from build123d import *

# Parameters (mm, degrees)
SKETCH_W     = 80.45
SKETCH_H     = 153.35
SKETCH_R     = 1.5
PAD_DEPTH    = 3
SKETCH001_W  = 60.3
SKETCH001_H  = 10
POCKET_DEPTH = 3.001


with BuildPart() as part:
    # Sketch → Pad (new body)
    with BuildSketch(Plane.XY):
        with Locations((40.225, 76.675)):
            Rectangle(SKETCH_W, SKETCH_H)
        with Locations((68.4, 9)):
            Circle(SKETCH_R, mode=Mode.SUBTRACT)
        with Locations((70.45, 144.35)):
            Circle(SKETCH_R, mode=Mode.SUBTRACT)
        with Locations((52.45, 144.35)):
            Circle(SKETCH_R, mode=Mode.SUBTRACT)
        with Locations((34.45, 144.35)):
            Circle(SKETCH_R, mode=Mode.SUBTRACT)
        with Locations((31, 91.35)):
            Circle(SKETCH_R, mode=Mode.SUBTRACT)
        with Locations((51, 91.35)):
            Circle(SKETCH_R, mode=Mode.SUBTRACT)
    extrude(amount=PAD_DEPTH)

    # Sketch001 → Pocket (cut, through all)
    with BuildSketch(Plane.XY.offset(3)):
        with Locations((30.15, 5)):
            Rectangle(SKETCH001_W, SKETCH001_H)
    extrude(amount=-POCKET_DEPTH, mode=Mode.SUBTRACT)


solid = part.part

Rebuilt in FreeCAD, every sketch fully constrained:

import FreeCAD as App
import Part
import Sketcher
from FreeCAD import Vector
Q = App.Units.Quantity


def add_polygon(sketch, points):
    """Adds a closed chain of lines whose ends are joined by coincident constraints."""
    first, n = sketch.GeometryCount, len(points)
    for a, b in zip(points, points[1:] + points[:1]):
        sketch.addGeometry(Part.LineSegment(App.Vector(*a, 0), App.Vector(*b, 0)), False)
    for i in range(n):
        sketch.addConstraint(Sketcher.Constraint("Coincident", first + i, 2, first + (i + 1) % n, 1))

doc = App.newDocument("Part")
body = doc.addObject("PartDesign::Body", "Body")

# Sketch on XY plane
sketch1 = body.newObject("Sketcher::SketchObject", "Sketch")
sketch1.AttachmentSupport = (doc.getObject("XY_Plane"), [""])
sketch1.MapMode = "FlatFace"
add_polygon(sketch1, [(0, 153.3), (0, 0), (80.5, 0), (80.5, 153.3)])  # lines 0-3
sketch1.addGeometry(Part.Circle(Vector(68.4, 9, 0), Vector(0, 0, 1), 1.5), False)  # 4
sketch1.addGeometry(Part.Circle(Vector(31, 91.3, 0), Vector(0, 0, 1), 1.5), False)  # 5
sketch1.addGeometry(Part.Circle(Vector(34.5, 144.3, 0), Vector(0, 0, 1), 1.5), False)  # 6
sketch1.addGeometry(Part.Circle(Vector(51, 91.3, 0), Vector(0, 0, 1), 1.5), False)  # 7
sketch1.addGeometry(Part.Circle(Vector(52.5, 144.3, 0), Vector(0, 0, 1), 1.5), False)  # 8
sketch1.addGeometry(Part.Circle(Vector(70.5, 144.3, 0), Vector(0, 0, 1), 1.5), False)  # 9
sketch1.addConstraint([
    Sketcher.Constraint("Vertical", 0),
    Sketcher.Constraint("Horizontal", 1),
    Sketcher.Constraint("Vertical", 2),
    Sketcher.Constraint("Horizontal", 3),
    Sketcher.Constraint("Coincident", 0, 2, -1, 1),
    Sketcher.Constraint("Equal", 4, 5),
    Sketcher.Constraint("Equal", 5, 6),
    Sketcher.Constraint("Equal", 6, 7),
    Sketcher.Constraint("Equal", 7, 8),
    Sketcher.Constraint("Equal", 8, 9),
    Sketcher.Constraint("Horizontal", 5, 3, 7, 3),
    Sketcher.Constraint("Horizontal", 6, 3, 8, 3),
    Sketcher.Constraint("Horizontal", 8, 3, 9, 3),
    Sketcher.Constraint("Diameter", 4, Q("3 mm")),
    Sketcher.Constraint("DistanceY", -1, 1, 4, 3, Q("9 mm")),
    Sketcher.Constraint("DistanceX", -1, 1, 5, 3, Q("31 mm")),
    Sketcher.Constraint("DistanceX", -1, 1, 7, 3, Q("51 mm")),
    Sketcher.Constraint("DistanceY", 5, 3, 6, 3, Q("53 mm")),
    Sketcher.Constraint("DistanceX", 6, 3, 8, 3, Q("18 mm")),
    Sketcher.Constraint("DistanceX", 8, 3, 9, 3, Q("18 mm")),
    Sketcher.Constraint("DistanceX", 9, 3, 1, 2, Q("10 mm")),
    Sketcher.Constraint("DistanceY", 9, 3, 2, 2, Q("9 mm")),
    Sketcher.Constraint("DistanceX", 1, 1, 1, 2, Q("80.45 mm")),
    Sketcher.Constraint("DistanceY", 0, 2, 0, 1, Q("153.35 mm")),
    Sketcher.Constraint("DistanceX", -1, 1, 4, 3, Q("68.4 mm")),
])
pad1 = body.newObject("PartDesign::Pad", "Pad")
pad1.Profile = sketch1
pad1.Length = 3

# Sketch on XY plane
sketch2 = body.newObject("Sketcher::SketchObject", "Sketch001")
sketch2.AttachmentSupport = (doc.getObject("XY_Plane"), [""])
sketch2.MapMode = "FlatFace"
sketch2.AttachmentOffset = App.Placement(Vector(0, 0, 3), App.Rotation())
add_polygon(sketch2, [(0, 10), (0, 0), (60, 0), (60, 10)])  # lines 0-3
sketch2.addConstraint([
    Sketcher.Constraint("Vertical", 0),
    Sketcher.Constraint("Horizontal", 1),
    Sketcher.Constraint("Vertical", 2),
    Sketcher.Constraint("Horizontal", 3),
    Sketcher.Constraint("Coincident", 0, 2, -1, 1),
    Sketcher.Constraint("DistanceY", 0, 2, 0, 1, Q("10 mm")),
    Sketcher.Constraint("DistanceX", 1, 1, 1, 2, Q("60.3 mm")),
])
pocket1 = body.newObject("PartDesign::Pocket", "Pocket")
pocket1.Profile = sketch2
pocket1.Type = "ThroughAll"

doc.recompute()
